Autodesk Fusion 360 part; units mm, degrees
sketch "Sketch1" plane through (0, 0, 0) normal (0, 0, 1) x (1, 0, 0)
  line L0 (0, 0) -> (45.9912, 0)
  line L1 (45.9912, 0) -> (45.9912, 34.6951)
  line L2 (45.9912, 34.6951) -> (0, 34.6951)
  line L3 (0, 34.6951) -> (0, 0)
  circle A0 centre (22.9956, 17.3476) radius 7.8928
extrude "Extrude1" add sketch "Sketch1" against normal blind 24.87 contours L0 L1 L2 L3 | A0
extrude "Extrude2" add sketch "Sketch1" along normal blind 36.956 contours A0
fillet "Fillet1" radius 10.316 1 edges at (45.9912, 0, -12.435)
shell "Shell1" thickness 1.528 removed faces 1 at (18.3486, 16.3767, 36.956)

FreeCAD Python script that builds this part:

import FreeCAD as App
import Part
import Sketcher
from FreeCAD import Vector


def edges_at(feature, points):
    """Names of the edges that pass closest to the given points."""
    edges = feature.Shape.Edges
    near = lambda p: min(range(len(edges)), key=lambda i: edges[i].distToShape(Part.Vertex(*p))[0])
    return sorted({f"Edge{near(p) + 1}" for p in points})


def faces_at(feature, points):
    """Names of the faces that lie closest to the given points."""
    faces = feature.Shape.Faces
    near = lambda p: min(range(len(faces)), key=lambda i: faces[i].distToShape(Part.Vertex(*p))[0])
    return sorted({f"Face{near(p) + 1}" for p in points})

doc = App.newDocument("Part")
body = doc.addObject("PartDesign::Body", "Body")

# Sketch on XY plane
sketch1 = body.newObject("Sketcher::SketchObject", "Sketch")
sketch1.AttachmentSupport = (doc.getObject("XY_Plane"), [""])
sketch1.MapMode = "FlatFace"
sketch1.addGeometry([
    Part.LineSegment(Vector(0, 34.6951, 0), Vector(0, 0, 0)),
    Part.LineSegment(Vector(0, 0, 0), Vector(45.9912, 0, 0)),
    Part.LineSegment(Vector(45.9912, 0, 0), Vector(45.9912, 34.6951, 0)),
    Part.LineSegment(Vector(45.9912, 34.6951, 0), Vector(0, 34.6951, 0)),
], False)
sketch1.addConstraint([
    Sketcher.Constraint("Coincident", 0, 2, 1, 1),
    Sketcher.Constraint("Coincident", 1, 2, 2, 1),
    Sketcher.Constraint("Coincident", 2, 2, 3, 1),
    Sketcher.Constraint("Coincident", 3, 2, 0, 1),
    Sketcher.Constraint("Vertical", 0),
    Sketcher.Constraint("Horizontal", 1),
    Sketcher.Constraint("Vertical", 2),
    Sketcher.Constraint("Horizontal", 3),
    Sketcher.Constraint("Coincident", 0, 2, -1, 1),
    Sketcher.Constraint("DistanceY", 0, 2, 0, 1, 34.695),
    Sketcher.Constraint("DistanceX", 1, 1, 1, 2, 45.9912),
])
pad1 = body.newObject("PartDesign::Pad", "Pad")
pad1.Profile = sketch1
pad1.Length = 24.87
pad1.Reversed = True

# Sketch on XY plane
sketch2 = body.newObject("Sketcher::SketchObject", "Sketch001")
sketch2.AttachmentSupport = (doc.getObject("XY_Plane"), [""])
sketch2.MapMode = "FlatFace"
sketch2.addGeometry(Part.Circle(Vector(22.9956, 17.3476, 0), Vector(0, 0, 1), 7.8928), False)
sketch2.addConstraint([
    Sketcher.Constraint("Diameter", 0, 15.7856),
    Sketcher.Constraint("DistanceX", -1, 1, 0, 3, 22.9956),
    Sketcher.Constraint("DistanceY", -1, 1, 0, 3, 17.3476),
])
pad2 = body.newObject("PartDesign::Pad", "Pad001")
pad2.Profile = sketch2
pad2.Length = 36.956
doc.recompute()

fillet = body.newObject("PartDesign::Fillet", "Fillet")
fillet.Base = (pad2, edges_at(pad2, [(45.991, 0, -12.435)]))
fillet.Radius = 10.316
doc.recompute()

thickness = body.newObject("PartDesign::Thickness", "Thickness")
thickness.Base = (fillet, faces_at(fillet, [(18.349, 16.377, 36.956)]))
thickness.Value = 1.528
thickness.Reversed = True
thickness.Join = "Intersection"

doc.recompute()
